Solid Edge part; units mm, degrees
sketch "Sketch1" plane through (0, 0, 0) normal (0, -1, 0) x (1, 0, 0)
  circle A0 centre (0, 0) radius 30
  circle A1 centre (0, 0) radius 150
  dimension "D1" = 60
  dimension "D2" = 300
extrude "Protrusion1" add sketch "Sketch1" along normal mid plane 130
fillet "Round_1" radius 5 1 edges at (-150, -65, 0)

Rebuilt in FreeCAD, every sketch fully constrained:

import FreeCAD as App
import Part
import Sketcher
from FreeCAD import Vector


def edges_at(feature, points):
    """Names of the edges that pass closest to the given points."""
    edges = feature.Shape.Edges
    near = lambda p: min(range(len(edges)), key=lambda i: edges[i].distToShape(Part.Vertex(*p))[0])
    return sorted({f"Edge{near(p) + 1}" for p in points})

doc = App.newDocument("Part")
body = doc.addObject("PartDesign::Body", "Body")

# Sketch on XZ plane
sketch1 = body.newObject("Sketcher::SketchObject", "Sketch")
sketch1.AttachmentSupport = (doc.getObject("XZ_Plane"), [""])
sketch1.MapMode = "FlatFace"
sketch1.addGeometry([
    Part.Circle(Vector(0, 0, 0), Vector(0, 0, 1), 150),
    Part.Circle(Vector(0, 0, 0), Vector(0, 0, 1), 30),
], False)
sketch1.addConstraint([
    Sketcher.Constraint("Coincident", 0, 3, -1, 1),
    Sketcher.Constraint("Coincident", 1, 3, -1, 1),
    Sketcher.Constraint("Diameter", 0, 300.0),
    Sketcher.Constraint("Diameter", 1, 60.0),
])
pad1 = body.newObject("PartDesign::Pad", "Pad")
pad1.Profile = sketch1
pad1.Length = 130
pad1.Midplane = True
doc.recompute()

fillet = body.newObject("PartDesign::Fillet", "Fillet")
fillet.Base = (pad1, edges_at(pad1, [(-150, -65, 0)]))
fillet.Radius = 5

doc.recompute()
